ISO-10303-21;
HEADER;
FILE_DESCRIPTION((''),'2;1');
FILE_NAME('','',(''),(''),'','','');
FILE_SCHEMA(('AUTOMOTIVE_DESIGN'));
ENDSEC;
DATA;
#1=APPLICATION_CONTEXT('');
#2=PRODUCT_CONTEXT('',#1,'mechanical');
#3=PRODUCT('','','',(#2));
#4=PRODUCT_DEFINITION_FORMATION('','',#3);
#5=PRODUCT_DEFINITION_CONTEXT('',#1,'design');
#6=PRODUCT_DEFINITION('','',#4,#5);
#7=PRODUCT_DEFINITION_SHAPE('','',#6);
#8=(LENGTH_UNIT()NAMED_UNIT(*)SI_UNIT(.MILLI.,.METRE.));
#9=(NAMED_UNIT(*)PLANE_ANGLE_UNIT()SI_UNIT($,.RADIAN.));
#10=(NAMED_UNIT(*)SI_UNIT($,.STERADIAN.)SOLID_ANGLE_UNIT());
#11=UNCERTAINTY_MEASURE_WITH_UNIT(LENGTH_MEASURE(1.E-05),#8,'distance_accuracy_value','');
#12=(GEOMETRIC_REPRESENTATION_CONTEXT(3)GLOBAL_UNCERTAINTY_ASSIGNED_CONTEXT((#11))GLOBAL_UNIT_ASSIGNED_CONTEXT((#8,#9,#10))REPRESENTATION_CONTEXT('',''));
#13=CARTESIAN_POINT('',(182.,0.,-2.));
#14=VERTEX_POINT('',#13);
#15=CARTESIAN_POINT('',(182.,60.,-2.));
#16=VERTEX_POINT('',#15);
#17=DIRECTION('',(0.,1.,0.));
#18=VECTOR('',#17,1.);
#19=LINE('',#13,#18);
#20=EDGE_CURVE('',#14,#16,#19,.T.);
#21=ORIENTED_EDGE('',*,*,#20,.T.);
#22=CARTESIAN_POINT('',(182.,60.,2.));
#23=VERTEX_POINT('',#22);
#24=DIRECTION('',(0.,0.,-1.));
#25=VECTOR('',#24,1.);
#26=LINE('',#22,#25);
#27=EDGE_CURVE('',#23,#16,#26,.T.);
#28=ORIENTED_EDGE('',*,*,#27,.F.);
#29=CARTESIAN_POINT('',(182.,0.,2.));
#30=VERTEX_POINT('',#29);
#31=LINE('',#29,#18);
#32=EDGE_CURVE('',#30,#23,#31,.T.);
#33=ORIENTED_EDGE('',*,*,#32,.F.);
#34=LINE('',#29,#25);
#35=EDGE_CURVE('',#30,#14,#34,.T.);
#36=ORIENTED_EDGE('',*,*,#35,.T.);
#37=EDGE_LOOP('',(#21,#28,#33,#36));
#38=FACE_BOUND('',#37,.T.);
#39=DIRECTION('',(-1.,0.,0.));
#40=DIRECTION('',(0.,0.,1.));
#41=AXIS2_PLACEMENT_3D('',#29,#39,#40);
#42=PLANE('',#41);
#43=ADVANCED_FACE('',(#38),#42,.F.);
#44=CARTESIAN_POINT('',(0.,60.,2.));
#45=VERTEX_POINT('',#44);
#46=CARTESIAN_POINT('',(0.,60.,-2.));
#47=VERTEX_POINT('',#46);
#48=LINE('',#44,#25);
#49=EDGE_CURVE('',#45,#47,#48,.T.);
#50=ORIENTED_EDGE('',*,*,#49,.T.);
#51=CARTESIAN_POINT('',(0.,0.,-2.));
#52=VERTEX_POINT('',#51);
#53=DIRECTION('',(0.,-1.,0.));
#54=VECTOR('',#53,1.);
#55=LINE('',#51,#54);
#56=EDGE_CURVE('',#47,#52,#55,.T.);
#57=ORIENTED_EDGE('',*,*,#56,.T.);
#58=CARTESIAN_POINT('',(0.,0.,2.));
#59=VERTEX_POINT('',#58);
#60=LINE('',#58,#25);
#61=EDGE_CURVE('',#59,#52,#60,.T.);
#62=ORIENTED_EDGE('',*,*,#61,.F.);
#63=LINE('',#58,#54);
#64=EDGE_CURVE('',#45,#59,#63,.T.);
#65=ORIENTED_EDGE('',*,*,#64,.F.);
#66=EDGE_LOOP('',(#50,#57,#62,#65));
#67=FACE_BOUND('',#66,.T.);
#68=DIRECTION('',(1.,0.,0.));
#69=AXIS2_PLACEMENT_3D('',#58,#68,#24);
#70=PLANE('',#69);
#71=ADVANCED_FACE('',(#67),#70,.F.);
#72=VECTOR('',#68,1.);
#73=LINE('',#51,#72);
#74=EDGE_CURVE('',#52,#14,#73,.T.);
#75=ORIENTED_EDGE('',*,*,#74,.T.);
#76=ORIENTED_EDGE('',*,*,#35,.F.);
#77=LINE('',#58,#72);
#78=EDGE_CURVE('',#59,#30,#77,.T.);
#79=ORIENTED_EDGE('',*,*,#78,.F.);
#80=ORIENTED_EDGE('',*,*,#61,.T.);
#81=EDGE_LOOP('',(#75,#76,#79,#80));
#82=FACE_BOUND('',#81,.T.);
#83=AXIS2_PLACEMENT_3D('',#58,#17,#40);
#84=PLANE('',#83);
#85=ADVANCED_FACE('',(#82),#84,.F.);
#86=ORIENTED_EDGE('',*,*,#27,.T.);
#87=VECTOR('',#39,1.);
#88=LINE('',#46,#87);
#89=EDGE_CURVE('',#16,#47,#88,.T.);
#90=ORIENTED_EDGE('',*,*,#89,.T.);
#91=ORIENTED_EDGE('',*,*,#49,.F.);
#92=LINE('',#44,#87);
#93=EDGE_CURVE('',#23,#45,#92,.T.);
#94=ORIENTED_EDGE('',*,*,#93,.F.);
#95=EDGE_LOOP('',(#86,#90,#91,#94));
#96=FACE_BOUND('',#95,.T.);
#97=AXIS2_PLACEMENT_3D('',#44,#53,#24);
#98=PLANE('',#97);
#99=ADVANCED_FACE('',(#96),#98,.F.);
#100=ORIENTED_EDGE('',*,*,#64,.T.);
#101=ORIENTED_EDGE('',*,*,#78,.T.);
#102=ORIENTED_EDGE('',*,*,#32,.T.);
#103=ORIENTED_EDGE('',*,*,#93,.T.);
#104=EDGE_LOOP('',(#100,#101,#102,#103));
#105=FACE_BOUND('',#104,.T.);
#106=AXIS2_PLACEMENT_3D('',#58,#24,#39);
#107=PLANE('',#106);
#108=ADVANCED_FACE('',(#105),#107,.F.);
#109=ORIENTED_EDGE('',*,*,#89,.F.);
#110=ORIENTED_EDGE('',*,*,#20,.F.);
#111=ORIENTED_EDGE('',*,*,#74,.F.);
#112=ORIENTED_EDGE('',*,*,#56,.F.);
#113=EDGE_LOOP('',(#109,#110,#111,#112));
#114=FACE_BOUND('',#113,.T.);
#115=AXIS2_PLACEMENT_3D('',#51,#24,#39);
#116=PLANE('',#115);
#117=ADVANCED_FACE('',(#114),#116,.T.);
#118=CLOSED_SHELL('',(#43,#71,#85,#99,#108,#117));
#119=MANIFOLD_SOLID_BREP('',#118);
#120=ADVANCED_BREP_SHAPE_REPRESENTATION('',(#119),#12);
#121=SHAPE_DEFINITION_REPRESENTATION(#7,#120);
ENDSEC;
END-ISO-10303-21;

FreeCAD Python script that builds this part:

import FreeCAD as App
import Part
import Sketcher

V = App.Vector


def add_polygon(sketch, points):
    """Adds a closed chain of lines whose ends are joined by coincident constraints."""
    first, n = sketch.GeometryCount, len(points)
    for a, b in zip(points, points[1:] + points[:1]):
        sketch.addGeometry(Part.LineSegment(App.Vector(*a, 0), App.Vector(*b, 0)), False)
    for i in range(n):
        sketch.addConstraint(Sketcher.Constraint("Coincident", first + i, 2, first + (i + 1) % n, 1))

doc = App.newDocument("Part")
body = doc.addObject("PartDesign::Body", "Body")

# Sketch on XY plane
sketch1 = body.newObject("Sketcher::SketchObject", "Sketch")
sketch1.AttachmentSupport = (doc.getObject("XY_Plane"), [""])
sketch1.MapMode = "FlatFace"
add_polygon(sketch1, [(0, 60), (0, 0), (182, 0), (182, 60)])  # lines 0-3
sketch1.addConstraint([
    Sketcher.Constraint("Vertical", 0),
    Sketcher.Constraint("Horizontal", 1),
    Sketcher.Constraint("Vertical", 2),
    Sketcher.Constraint("Horizontal", 3),
    Sketcher.Constraint("Coincident", 0, 2, -1, 1),
    Sketcher.Constraint("DistanceX", 1, 1, 1, 2, 182.0),
    Sketcher.Constraint("DistanceY", 0, 2, 0, 1, 60.0),
])
pad1 = body.newObject("PartDesign::Pad", "Pad")
pad1.Profile = sketch1
pad1.Length = 4
pad1.Midplane = True

doc.recompute()
